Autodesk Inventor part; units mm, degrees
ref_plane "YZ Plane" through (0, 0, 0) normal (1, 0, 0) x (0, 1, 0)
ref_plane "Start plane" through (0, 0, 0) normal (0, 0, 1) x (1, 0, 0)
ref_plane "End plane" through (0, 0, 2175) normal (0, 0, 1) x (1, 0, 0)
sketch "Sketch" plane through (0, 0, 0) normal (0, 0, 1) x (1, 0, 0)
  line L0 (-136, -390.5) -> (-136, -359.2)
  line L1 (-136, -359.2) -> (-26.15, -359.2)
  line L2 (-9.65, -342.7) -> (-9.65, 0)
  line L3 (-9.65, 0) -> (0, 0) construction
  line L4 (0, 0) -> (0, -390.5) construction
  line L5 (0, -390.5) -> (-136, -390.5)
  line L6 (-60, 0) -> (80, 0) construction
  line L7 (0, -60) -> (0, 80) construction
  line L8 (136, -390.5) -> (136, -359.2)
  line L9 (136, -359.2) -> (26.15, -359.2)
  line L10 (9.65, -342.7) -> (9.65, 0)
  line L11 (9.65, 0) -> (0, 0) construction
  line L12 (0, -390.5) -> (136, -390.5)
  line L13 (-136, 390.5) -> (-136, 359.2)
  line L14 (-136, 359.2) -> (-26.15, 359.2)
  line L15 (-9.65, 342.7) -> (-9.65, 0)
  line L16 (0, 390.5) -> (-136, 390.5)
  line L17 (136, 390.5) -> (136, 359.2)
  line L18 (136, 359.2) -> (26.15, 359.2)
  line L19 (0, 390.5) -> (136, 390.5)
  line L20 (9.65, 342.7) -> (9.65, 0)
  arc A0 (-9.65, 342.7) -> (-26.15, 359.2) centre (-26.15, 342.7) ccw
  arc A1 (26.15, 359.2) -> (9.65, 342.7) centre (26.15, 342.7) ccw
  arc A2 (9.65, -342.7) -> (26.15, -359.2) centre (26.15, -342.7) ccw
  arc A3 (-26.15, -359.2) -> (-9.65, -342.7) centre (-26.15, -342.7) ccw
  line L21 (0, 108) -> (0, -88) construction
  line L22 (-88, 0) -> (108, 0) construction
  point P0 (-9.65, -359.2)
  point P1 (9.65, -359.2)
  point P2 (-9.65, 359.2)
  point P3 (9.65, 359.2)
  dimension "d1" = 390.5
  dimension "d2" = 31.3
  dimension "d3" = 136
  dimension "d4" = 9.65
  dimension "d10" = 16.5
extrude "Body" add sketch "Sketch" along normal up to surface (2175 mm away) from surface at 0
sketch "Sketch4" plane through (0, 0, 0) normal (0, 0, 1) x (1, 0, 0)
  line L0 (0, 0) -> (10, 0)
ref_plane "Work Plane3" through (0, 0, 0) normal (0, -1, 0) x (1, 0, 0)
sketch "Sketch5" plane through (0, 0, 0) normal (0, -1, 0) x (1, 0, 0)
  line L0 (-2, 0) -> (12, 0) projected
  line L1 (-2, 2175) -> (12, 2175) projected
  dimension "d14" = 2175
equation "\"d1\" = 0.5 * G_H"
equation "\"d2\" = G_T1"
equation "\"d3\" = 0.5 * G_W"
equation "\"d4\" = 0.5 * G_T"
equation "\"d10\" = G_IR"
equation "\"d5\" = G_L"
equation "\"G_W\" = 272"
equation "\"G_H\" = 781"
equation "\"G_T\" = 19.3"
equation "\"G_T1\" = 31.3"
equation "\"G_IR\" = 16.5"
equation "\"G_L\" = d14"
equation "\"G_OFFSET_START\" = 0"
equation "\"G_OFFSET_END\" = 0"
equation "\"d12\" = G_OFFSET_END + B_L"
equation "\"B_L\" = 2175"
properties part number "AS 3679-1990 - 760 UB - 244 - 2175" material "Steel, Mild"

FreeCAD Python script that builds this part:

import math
import FreeCAD as App
import Part
import Sketcher
from FreeCAD import Vector
Q = App.Units.Quantity

doc = App.newDocument("Part")
params = doc.addObject("Spreadsheet::Sheet", "Params")
for row, (alias, value) in enumerate([
    ("sketch1_radius", "16.5 mm"),
    ("sketch1_height", "31.3 mm"),
    ("pad1_length", "2175 mm"),
], start=1):
    params.set(f"A{row}", alias)
    params.set(f"B{row}", "=" + value)
    params.setAlias(f"B{row}", alias)

body = doc.addObject("PartDesign::Body", "Body")

# Sketch on XY plane
sketch1 = doc.addObject("Sketcher::SketchObject", "Sketch")
body.addObject(sketch1)
sketch1.AttachmentSupport = (doc.XY_Plane, [""])
sketch1.MapMode = "FlatFace"
sketch1.addGeometry([
    Part.LineSegment(Vector(-136, -359, 0), Vector(-136, -390, 0)),  # 0
    Part.LineSegment(Vector(-136, -390, 0), Vector(136, -390, 0)),  # 1
    Part.LineSegment(Vector(136, -390, 0), Vector(136, -359, 0)),  # 2
    Part.LineSegment(Vector(136, -359, 0), Vector(26, -359, 0)),  # 3
    Part.ArcOfCircle(Part.Circle(Vector(26, -343, 0), Vector(0, 0, 1), 16), math.radians(180), math.radians(270)),  # 4
    Part.LineSegment(Vector(10, -343, 0), Vector(10, 343, 0)),  # 5
    Part.ArcOfCircle(Part.Circle(Vector(26, 343, 0), Vector(0, 0, 1), 16), math.radians(90), math.radians(180)),  # 6
    Part.LineSegment(Vector(26, 359, 0), Vector(136, 359, 0)),  # 7
    Part.LineSegment(Vector(136, 359, 0), Vector(136, 390, 0)),  # 8
    Part.LineSegment(Vector(136, 390, 0), Vector(-136, 390, 0)),  # 9
    Part.LineSegment(Vector(-136, 390, 0), Vector(-136, 359, 0)),  # 10
    Part.LineSegment(Vector(-136, 359, 0), Vector(-26, 359, 0)),  # 11
    Part.ArcOfCircle(Part.Circle(Vector(-26, 343, 0), Vector(0, 0, 1), 16), math.radians(0), math.radians(90)),  # 12
    Part.LineSegment(Vector(-10, 343, 0), Vector(-10, -343, 0)),  # 13
    Part.ArcOfCircle(Part.Circle(Vector(-26, -343, 0), Vector(0, 0, 1), 16), math.radians(-90), math.radians(0)),  # 14
    Part.LineSegment(Vector(-26, -359, 0), Vector(-136, -359, 0)),  # 15
], False)
sketch1.addConstraint([
    Sketcher.Constraint("Coincident", 0, 2, 1, 1),
    Sketcher.Constraint("Coincident", 1, 2, 2, 1),
    Sketcher.Constraint("Coincident", 2, 2, 3, 1),
    Sketcher.Constraint("Tangent", 3, 2, 4, 2),
    Sketcher.Constraint("Tangent", 4, 1, 5, 1),
    Sketcher.Constraint("Tangent", 5, 2, 6, 2),
    Sketcher.Constraint("Tangent", 6, 1, 7, 1),
    Sketcher.Constraint("Coincident", 7, 2, 8, 1),
    Sketcher.Constraint("Coincident", 8, 2, 9, 1),
    Sketcher.Constraint("Coincident", 9, 2, 10, 1),
    Sketcher.Constraint("Coincident", 10, 2, 11, 1),
    Sketcher.Constraint("Tangent", 11, 2, 12, 2),
    Sketcher.Constraint("Tangent", 12, 1, 13, 1),
    Sketcher.Constraint("Tangent", 13, 2, 14, 2),
    Sketcher.Constraint("Tangent", 14, 1, 15, 1),
    Sketcher.Constraint("Coincident", 15, 2, 0, 1),
    Sketcher.Constraint("Vertical", 0),
    Sketcher.Constraint("Horizontal", 1),
    Sketcher.Constraint("Vertical", 2),
    Sketcher.Constraint("Horizontal", 3),
    Sketcher.Constraint("Vertical", 5),
    Sketcher.Constraint("Horizontal", 7),
    Sketcher.Constraint("Vertical", 8),
    Sketcher.Constraint("Horizontal", 9),
    Sketcher.Constraint("Vertical", 10),
    Sketcher.Constraint("Horizontal", 11),
    Sketcher.Constraint("Vertical", 13),
    Sketcher.Constraint("Horizontal", 15),
    Sketcher.Constraint("Equal", 4, 6),
    Sketcher.Constraint("Equal", 6, 12),
    Sketcher.Constraint("Equal", 12, 14),
    Sketcher.Constraint("Symmetric", 4, 3, 12, 3, -1, 1),
    Sketcher.Constraint("Symmetric", 0, 2, 8, 2, -1, 1),
    Sketcher.Constraint("Symmetric", 7, 2, 10, 2, -2),
    Sketcher.Constraint("Symmetric", 2, 2, 15, 2, -2),
    Sketcher.Constraint("Radius", 4, Q("16.5 mm")),
    Sketcher.Constraint("DistanceY", 0, 2, 0, 1, Q("31.3 mm")),
    Sketcher.Constraint("DistanceX", 0, 2, -1, 1, Q("136 mm")),
    Sketcher.Constraint("DistanceY", 0, 2, -1, 1, Q("390.5 mm")),
    Sketcher.Constraint("DistanceX", -1, 1, 4, 1, Q("9.65 mm")),
])
sketch1.setExpression("Constraints[35]", "Params.sketch1_radius")
sketch1.setExpression("Constraints[36]", "Params.sketch1_height")
pad1 = doc.addObject("PartDesign::Pad", "Pad")
body.addObject(pad1)
pad1.Profile = sketch1
pad1.setExpression("Length", "Params.pad1_length")

doc.recompute()
